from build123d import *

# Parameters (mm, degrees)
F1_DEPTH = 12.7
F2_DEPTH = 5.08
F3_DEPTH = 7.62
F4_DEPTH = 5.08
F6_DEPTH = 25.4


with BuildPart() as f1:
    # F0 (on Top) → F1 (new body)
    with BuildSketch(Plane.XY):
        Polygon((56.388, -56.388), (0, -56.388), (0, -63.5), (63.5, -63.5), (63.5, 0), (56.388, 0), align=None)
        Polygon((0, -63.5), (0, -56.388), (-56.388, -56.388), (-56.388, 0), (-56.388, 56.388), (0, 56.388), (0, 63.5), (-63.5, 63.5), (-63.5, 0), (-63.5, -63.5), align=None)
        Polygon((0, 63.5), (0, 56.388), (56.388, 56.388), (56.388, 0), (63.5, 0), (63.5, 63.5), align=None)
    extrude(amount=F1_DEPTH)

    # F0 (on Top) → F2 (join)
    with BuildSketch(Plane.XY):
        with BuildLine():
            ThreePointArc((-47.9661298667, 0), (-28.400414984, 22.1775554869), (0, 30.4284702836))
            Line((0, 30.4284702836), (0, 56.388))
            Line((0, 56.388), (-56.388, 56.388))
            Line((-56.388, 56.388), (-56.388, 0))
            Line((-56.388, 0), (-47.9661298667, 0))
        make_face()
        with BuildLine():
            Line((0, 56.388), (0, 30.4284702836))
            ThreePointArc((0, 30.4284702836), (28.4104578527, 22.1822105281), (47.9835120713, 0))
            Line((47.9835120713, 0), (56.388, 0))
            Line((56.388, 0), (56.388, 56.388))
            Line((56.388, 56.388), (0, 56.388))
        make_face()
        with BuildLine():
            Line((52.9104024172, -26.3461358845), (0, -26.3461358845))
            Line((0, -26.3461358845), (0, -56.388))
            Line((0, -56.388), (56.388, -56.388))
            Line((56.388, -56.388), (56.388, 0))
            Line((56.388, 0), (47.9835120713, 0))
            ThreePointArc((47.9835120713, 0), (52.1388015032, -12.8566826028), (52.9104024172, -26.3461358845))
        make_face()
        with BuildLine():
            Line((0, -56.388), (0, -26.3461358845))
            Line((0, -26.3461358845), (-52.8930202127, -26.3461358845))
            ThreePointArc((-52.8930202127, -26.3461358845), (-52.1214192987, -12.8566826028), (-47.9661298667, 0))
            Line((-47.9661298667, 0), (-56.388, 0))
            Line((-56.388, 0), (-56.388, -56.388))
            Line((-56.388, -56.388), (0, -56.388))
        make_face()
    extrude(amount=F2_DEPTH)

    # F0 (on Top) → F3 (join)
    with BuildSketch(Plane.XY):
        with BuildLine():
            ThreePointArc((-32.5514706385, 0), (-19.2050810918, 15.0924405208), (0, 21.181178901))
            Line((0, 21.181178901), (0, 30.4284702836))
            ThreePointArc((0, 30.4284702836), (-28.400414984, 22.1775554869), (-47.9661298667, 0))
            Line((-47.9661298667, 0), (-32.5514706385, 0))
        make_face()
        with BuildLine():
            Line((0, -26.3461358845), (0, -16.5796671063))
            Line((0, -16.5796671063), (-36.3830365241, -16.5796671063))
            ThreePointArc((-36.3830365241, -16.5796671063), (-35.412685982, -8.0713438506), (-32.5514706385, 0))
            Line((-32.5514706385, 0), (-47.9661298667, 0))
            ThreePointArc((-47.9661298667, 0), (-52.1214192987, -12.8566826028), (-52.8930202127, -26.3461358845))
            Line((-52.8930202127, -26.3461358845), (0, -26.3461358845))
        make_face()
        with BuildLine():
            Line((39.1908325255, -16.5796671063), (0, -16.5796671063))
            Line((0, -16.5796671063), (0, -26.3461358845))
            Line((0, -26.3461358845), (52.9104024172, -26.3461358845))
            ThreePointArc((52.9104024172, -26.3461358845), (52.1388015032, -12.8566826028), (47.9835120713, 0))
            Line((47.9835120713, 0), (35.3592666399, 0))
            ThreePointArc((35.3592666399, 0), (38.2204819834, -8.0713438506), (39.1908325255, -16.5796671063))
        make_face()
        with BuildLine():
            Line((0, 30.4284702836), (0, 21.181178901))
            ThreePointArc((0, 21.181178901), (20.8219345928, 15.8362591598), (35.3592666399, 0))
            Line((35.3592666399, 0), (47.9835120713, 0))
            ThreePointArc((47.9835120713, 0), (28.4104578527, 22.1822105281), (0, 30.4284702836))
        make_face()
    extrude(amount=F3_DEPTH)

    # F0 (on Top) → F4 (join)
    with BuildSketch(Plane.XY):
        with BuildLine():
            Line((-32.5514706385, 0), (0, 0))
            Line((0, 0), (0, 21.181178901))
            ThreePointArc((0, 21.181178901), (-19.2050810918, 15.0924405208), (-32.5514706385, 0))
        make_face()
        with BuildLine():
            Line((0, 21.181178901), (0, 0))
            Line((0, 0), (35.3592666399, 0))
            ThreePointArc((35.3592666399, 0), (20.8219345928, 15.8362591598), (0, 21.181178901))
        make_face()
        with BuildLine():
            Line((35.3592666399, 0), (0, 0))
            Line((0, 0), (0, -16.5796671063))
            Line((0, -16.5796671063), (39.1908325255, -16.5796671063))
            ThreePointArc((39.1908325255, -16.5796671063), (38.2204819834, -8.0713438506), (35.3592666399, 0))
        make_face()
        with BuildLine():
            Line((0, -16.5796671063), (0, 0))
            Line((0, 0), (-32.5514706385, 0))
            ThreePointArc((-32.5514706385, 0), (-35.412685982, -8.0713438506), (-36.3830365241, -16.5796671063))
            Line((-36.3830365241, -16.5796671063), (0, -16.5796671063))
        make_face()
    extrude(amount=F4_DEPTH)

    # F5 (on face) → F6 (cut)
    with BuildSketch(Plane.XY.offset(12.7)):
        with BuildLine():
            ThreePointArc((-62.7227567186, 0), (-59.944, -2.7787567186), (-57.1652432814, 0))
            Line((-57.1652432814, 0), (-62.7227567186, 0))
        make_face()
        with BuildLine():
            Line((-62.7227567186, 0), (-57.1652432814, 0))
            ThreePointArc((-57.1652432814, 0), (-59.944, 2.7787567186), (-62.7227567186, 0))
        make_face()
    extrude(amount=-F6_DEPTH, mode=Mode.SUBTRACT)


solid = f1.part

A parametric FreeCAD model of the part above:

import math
import FreeCAD as App
import Part
import Sketcher

V = App.Vector
Q = App.Units.Quantity

doc = App.newDocument("Part")
body = doc.addObject("PartDesign::Body", "Body")

sketch1 = doc.addObject("Sketcher::SketchObject", "Sketch")
body.addObject(sketch1)
sketch1.AttachmentSupport = (doc.XY_Plane, [""])
sketch1.MapMode = "FlatFace"
sketch1.addGeometry([
    Part.LineSegment(V(-64, 64, 0), V(-64, -64, 0)),
    Part.LineSegment(V(-64, -64, 0), V(64, -64, 0)),
    Part.LineSegment(V(64, -64, 0), V(64, 64, 0)),
    Part.LineSegment(V(64, 64, 0), V(-64, 64, 0)),
    Part.LineSegment(V(56, -56, 0), V(-56, -56, 0)),
    Part.LineSegment(V(-56, -56, 0), V(-56, 56, 0)),
    Part.LineSegment(V(-56, 56, 0), V(56, 56, 0)),
    Part.LineSegment(V(56, 56, 0), V(56, -56, 0)),
], False)
sketch1.addConstraint([
    Sketcher.Constraint("Coincident", 0, 2, 1, 1),
    Sketcher.Constraint("Coincident", 1, 2, 2, 1),
    Sketcher.Constraint("Coincident", 2, 2, 3, 1),
    Sketcher.Constraint("Coincident", 3, 2, 0, 1),
    Sketcher.Constraint("Coincident", 4, 2, 5, 1),
    Sketcher.Constraint("Coincident", 5, 2, 6, 1),
    Sketcher.Constraint("Coincident", 6, 2, 7, 1),
    Sketcher.Constraint("Coincident", 7, 2, 4, 1),
    Sketcher.Constraint("Vertical", 0),
    Sketcher.Constraint("Horizontal", 1),
    Sketcher.Constraint("Vertical", 2),
    Sketcher.Constraint("Horizontal", 3),
    Sketcher.Constraint("Horizontal", 4),
    Sketcher.Constraint("Vertical", 5),
    Sketcher.Constraint("Horizontal", 6),
    Sketcher.Constraint("Vertical", 7),
    Sketcher.Constraint("Symmetric", 0, 2, 2, 2, -1, 1),
    Sketcher.Constraint("Symmetric", 4, 2, 6, 2, -1, 1),
    Sketcher.Constraint("Equal", 3, 0),
    Sketcher.Constraint("Equal", 6, 5),
    Sketcher.Constraint("DistanceX", 1, 1, 1, 2, Q("5 in")),
    Sketcher.Constraint("DistanceX", 4, 2, 4, 1, Q("4.44 in")),
])
pad1 = doc.addObject("PartDesign::Pad", "Pad")
body.addObject(pad1)
pad1.Profile = sketch1
pad1.Length = Q("0.5 in")

sketch2 = doc.addObject("Sketcher::SketchObject", "Sketch001")
body.addObject(sketch2)
sketch2.AttachmentSupport = (doc.XY_Plane, [""])
sketch2.MapMode = "FlatFace"
sketch2.addGeometry([
    Part.LineSegment(V(56, -56, 0), V(56, 56, 0)),
    Part.LineSegment(V(56, 56, 0), V(-56, 56, 0)),
    Part.LineSegment(V(-56, 56, 0), V(-56, -56, 0)),
    Part.LineSegment(V(-56, -56, 0), V(56, -56, 0)),
    Part.ArcOfCircle(Part.Circle(V(0, -23, 0), V(0, 0, 1), 53), math.radians(90), math.radians(155)),
    Part.ArcOfCircle(Part.Circle(V(0, -23, 0), V(0, 0, 1), 53), math.radians(25), math.radians(90)),
    Part.ArcOfCircle(Part.Circle(V(0, -23, 0), V(0, 0, 1), 53), math.radians(-4), math.radians(25)),
    Part.LineSegment(V(53, -26, 0), V(-53, -26, 0)),
    Part.ArcOfCircle(Part.Circle(V(0, -23, 0), V(0, 0, 1), 53), math.radians(155), math.radians(184)),
], False)
sketch2.addConstraint([
    Sketcher.Constraint("Coincident", 0, 2, 1, 1),
    Sketcher.Constraint("Coincident", 1, 2, 2, 1),
    Sketcher.Constraint("Coincident", 2, 2, 3, 1),
    Sketcher.Constraint("Coincident", 3, 2, 0, 1),
    Sketcher.Constraint("Tangent", 4, 1, 5, 2),
    Sketcher.Constraint("Tangent", 5, 1, 6, 2),
    Sketcher.Constraint("Coincident", 6, 1, 7, 1),
    Sketcher.Constraint("Coincident", 7, 2, 8, 2),
    Sketcher.Constraint("Tangent", 8, 1, 4, 2),
    Sketcher.Constraint("Vertical", 0),
    Sketcher.Constraint("Horizontal", 1),
    Sketcher.Constraint("Vertical", 2),
    Sketcher.Constraint("Horizontal", 3),
    Sketcher.Constraint("Horizontal", 7),
    Sketcher.Constraint("Coincident", 6, 3, 4, 3),
    Sketcher.Constraint("Equal", 6, 8),
    Sketcher.Constraint("Symmetric", 0, 2, 2, 2, -1, 1),
    Sketcher.Constraint("PointOnObject", 4, 1, -2),
    Sketcher.Constraint("PointOnObject", 5, 1, -1),
    Sketcher.Constraint("PointOnObject", 8, 1, -1),
    Sketcher.Constraint("Equal", 3, 0),
    Sketcher.Constraint("DistanceX", 1, 2, 1, 1, Q("4.44 in")),
    Sketcher.Constraint("Radius", 4, 53.033807),
    Sketcher.Constraint("DistanceY", 6, 1, 8, 3, 3.7408),
    Sketcher.Constraint("DistanceX", -1, 1, 4, 3, 0.008691),
    Sketcher.Constraint("DistanceY", -1, 1, 4, 1, 30.42847),
])
pad2 = doc.addObject("PartDesign::Pad", "Pad001")
body.addObject(pad2)
pad2.Profile = sketch2
pad2.Length = Q("0.2 in")

sketch3 = doc.addObject("Sketcher::SketchObject", "Sketch002")
body.addObject(sketch3)
sketch3.AttachmentSupport = (doc.XY_Plane, [""])
sketch3.MapMode = "FlatFace"
sketch3.addGeometry([
    Part.ArcOfCircle(Part.Circle(V(0, -23, 0), V(0, 0, 1), 53), math.radians(90), math.radians(155)),
    Part.ArcOfCircle(Part.Circle(V(0, -23, 0), V(0, 0, 1), 53), math.radians(155), math.radians(184)),
    Part.LineSegment(V(-53, -26, 0), V(53, -26, 0)),
    Part.ArcOfCircle(Part.Circle(V(0, -23, 0), V(0, 0, 1), 53), math.radians(-4), math.radians(25)),
    Part.ArcOfCircle(Part.Circle(V(0, -23, 0), V(0, 0, 1), 53), math.radians(25), math.radians(90)),
    Part.ArcOfCircle(Part.Circle(V(1, -17, 0), V(0, 0, 1), 38), math.radians(92), math.radians(154)),
    Part.ArcOfCircle(Part.Circle(V(1, -17, 0), V(0, 0, 1), 38), math.radians(26), math.radians(92)),
    Part.ArcOfCircle(Part.Circle(V(1, -17, 0), V(0, 0, 1), 38), math.radians(0), math.radians(26)),
    Part.LineSegment(V(39, -17, 0), V(-36, -17, 0)),
    Part.ArcOfCircle(Part.Circle(V(1, -17, 0), V(0, 0, 1), 38), math.radians(154), math.radians(180)),
], False)
sketch3.addConstraint([
    Sketcher.Constraint("Tangent", 0, 2, 1, 1),
    Sketcher.Constraint("Coincident", 1, 2, 2, 1),
    Sketcher.Constraint("Coincident", 2, 2, 3, 1),
    Sketcher.Constraint("Tangent", 3, 2, 4, 1),
    Sketcher.Constraint("Tangent", 4, 2, 0, 1),
    Sketcher.Constraint("Tangent", 5, 1, 6, 2),
    Sketcher.Constraint("Tangent", 6, 1, 7, 2),
    Sketcher.Constraint("Coincident", 7, 1, 8, 1),
    Sketcher.Constraint("Coincident", 8, 2, 9, 2),
    Sketcher.Constraint("Tangent", 9, 1, 5, 2),
    Sketcher.Constraint("Horizontal", 2),
    Sketcher.Constraint("Horizontal", 8),
    Sketcher.Constraint("Coincident", 3, 3, 0, 3),
    Sketcher.Constraint("Coincident", 7, 3, 5, 3),
    Sketcher.Constraint("Equal", 0, 1),
    Sketcher.Constraint("Equal", 7, 9),
    Sketcher.Constraint("PointOnObject", 0, 2, -1),
    Sketcher.Constraint("PointOnObject", 3, 2, -1),
    Sketcher.Constraint("PointOnObject", 4, 2, -2),
    Sketcher.Constraint("PointOnObject", 5, 1, -2),
    Sketcher.Constraint("PointOnObject", 6, 1, -1),
    Sketcher.Constraint("PointOnObject", 9, 1, -1),
    Sketcher.Constraint("Horizontal", 9, 3, 7, 1),
    Sketcher.Constraint("Radius", 0, 53.033807),
    Sketcher.Constraint("Radius", 5, 37.786935),
    Sketcher.Constraint("DistanceX", -1, 1, 5, 3, 1.403898),
    Sketcher.Constraint("DistanceY", 1, 2, 3, 3, 3.7408),
    Sketcher.Constraint("DistanceX", -1, 1, 0, 3, 0.008691),
    Sketcher.Constraint("DistanceX", 0, 2, -1, 1, 47.96613),
    Sketcher.Constraint("DistanceY", -1, 1, 5, 1, 21.181179),
])
pad3 = doc.addObject("PartDesign::Pad", "Pad002")
body.addObject(pad3)
pad3.Profile = sketch3
pad3.Length = Q("0.3 in")

sketch4 = doc.addObject("Sketcher::SketchObject", "Sketch003")
body.addObject(sketch4)
sketch4.AttachmentSupport = (doc.XY_Plane, [""])
sketch4.MapMode = "FlatFace"
sketch4.addGeometry([
    Part.ArcOfCircle(Part.Circle(V(1, -17, 0), V(0, 0, 1), 38), math.radians(0), math.radians(26)),
    Part.ArcOfCircle(Part.Circle(V(1, -17, 0), V(0, 0, 1), 38), math.radians(26), math.radians(92)),
    Part.ArcOfCircle(Part.Circle(V(1, -17, 0), V(0, 0, 1), 38), math.radians(92), math.radians(154)),
    Part.ArcOfCircle(Part.Circle(V(1, -17, 0), V(0, 0, 1), 38), math.radians(154), math.radians(180)),
    Part.LineSegment(V(-36, -17, 0), V(39, -17, 0)),
], False)
sketch4.addConstraint([
    Sketcher.Constraint("Tangent", 0, 2, 1, 1),
    Sketcher.Constraint("Tangent", 1, 2, 2, 1),
    Sketcher.Constraint("Tangent", 2, 2, 3, 1),
    Sketcher.Constraint("Coincident", 3, 2, 4, 1),
    Sketcher.Constraint("Coincident", 4, 2, 0, 1),
    Sketcher.Constraint("Horizontal", 4),
    Sketcher.Constraint("Coincident", 2, 3, 0, 3),
    Sketcher.Constraint("Equal", 2, 3),
    Sketcher.Constraint("PointOnObject", 0, 2, -1),
    Sketcher.Constraint("PointOnObject", 1, 2, -2),
    Sketcher.Constraint("PointOnObject", 2, 2, -1),
    Sketcher.Constraint("Horizontal", 2, 3, 3, 2),
    Sketcher.Constraint("Radius", 0, 37.786935),
    Sketcher.Constraint("DistanceX", -1, 1, 0, 3, 1.403898),
    Sketcher.Constraint("DistanceY", -1, 1, 1, 2, 21.181179),
])
pad4 = doc.addObject("PartDesign::Pad", "Pad003")
body.addObject(pad4)
pad4.Profile = sketch4
pad4.Length = Q("0.2 in")

sketch5 = doc.addObject("Sketcher::SketchObject", "Sketch004")
body.addObject(sketch5)
sketch5.AttachmentSupport = (doc.XY_Plane, [""])
sketch5.MapMode = "FlatFace"
sketch5.AttachmentOffset = App.Placement(V(0, 0, 0.5 * 25.4), App.Rotation())
sketch5.addGeometry(Part.Circle(V(-59.9, 0, 0), V(0, 0, 1), 2.8), False)
sketch5.addConstraint([
    Sketcher.Constraint("PointOnObject", 0, 3, -1),
    Sketcher.Constraint("DistanceX", 0, 3, -1, 1, Q("2.36 in")),
    Sketcher.Constraint("Diameter", 0, 5.557513),
])
pocket1 = doc.addObject("PartDesign::Pocket", "Pocket")
body.addObject(pocket1)
pocket1.Profile = sketch5
pocket1.Length = Q("1 in")

doc.recompute()
